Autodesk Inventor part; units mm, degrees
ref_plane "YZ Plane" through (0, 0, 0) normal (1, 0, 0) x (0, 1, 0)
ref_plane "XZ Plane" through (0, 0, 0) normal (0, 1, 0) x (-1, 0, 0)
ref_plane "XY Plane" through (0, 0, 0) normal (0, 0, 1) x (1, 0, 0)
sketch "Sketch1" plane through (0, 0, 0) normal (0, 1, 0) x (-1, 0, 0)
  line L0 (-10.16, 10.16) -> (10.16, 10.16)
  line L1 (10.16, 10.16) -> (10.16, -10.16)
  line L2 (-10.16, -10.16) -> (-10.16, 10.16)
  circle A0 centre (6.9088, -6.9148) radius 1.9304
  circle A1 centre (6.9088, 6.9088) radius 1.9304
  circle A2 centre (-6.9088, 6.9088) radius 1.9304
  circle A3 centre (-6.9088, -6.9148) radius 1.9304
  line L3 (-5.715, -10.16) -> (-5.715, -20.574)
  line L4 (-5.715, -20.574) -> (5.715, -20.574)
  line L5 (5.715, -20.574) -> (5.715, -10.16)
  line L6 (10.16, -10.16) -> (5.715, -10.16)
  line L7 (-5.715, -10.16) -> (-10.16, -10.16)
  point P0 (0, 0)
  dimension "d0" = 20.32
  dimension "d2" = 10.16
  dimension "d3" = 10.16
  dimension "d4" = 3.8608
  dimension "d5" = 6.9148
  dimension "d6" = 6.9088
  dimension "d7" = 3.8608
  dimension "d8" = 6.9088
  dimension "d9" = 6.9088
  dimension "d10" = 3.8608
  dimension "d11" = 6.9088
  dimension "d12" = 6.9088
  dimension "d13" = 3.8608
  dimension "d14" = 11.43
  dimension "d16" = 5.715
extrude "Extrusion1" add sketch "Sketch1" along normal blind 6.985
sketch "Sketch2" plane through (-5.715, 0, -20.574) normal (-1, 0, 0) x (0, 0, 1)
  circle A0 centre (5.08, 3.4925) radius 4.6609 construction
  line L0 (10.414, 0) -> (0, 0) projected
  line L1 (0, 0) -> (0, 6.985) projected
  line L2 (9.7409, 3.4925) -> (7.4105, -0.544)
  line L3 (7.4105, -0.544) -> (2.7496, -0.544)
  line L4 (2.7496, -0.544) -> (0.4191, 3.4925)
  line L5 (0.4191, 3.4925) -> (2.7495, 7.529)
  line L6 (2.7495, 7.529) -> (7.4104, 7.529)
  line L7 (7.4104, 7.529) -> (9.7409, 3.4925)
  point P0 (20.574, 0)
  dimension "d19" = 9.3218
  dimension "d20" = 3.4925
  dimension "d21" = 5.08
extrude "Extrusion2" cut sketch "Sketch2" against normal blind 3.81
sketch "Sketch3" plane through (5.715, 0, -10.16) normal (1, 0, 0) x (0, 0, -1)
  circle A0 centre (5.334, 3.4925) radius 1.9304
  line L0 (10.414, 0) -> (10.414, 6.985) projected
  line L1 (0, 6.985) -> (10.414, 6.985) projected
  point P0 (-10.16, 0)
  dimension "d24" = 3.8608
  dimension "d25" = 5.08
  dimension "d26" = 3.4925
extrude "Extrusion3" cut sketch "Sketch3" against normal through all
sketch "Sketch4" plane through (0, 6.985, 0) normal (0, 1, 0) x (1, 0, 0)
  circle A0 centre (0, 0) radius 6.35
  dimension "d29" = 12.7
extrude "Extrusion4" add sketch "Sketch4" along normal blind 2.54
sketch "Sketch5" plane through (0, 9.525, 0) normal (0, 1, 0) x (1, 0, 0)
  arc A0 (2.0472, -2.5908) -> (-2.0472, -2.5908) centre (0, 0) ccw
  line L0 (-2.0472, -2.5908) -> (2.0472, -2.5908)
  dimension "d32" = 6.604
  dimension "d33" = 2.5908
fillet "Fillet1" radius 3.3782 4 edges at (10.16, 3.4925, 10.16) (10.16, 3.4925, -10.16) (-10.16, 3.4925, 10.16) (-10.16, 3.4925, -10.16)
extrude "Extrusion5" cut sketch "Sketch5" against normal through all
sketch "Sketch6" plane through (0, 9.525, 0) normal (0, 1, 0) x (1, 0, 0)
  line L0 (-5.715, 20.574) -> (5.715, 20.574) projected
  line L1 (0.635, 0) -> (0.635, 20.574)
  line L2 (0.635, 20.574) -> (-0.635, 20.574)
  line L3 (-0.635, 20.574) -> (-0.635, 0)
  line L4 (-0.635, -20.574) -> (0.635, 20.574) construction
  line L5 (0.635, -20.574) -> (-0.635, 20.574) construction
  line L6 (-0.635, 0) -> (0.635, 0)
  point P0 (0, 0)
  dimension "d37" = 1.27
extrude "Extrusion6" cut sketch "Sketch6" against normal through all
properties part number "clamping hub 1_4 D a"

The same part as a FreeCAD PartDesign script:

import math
import FreeCAD as App
import Part
import Sketcher

V = App.Vector
Q = App.Units.Quantity


def edges_at(feature, points):
    """Names of the edges that pass closest to the given points."""
    edges = feature.Shape.Edges
    near = lambda p: min(range(len(edges)), key=lambda i: edges[i].distToShape(Part.Vertex(*p))[0])
    return sorted({f"Edge{near(p) + 1}" for p in points})

doc = App.newDocument("Part")
body = doc.addObject("PartDesign::Body", "Body")

# Sketch on XZ plane
sketch1 = doc.addObject("Sketcher::SketchObject", "Sketch")
body.addObject(sketch1)
sketch1.AttachmentSupport = (doc.XZ_Plane, [""])
sketch1.MapMode = "FlatFace"
sketch1.addGeometry(Part.LineSegment(V(-10.2, 10.2, 0), V(10.2, 10.2, 0)), False)
sketch1.addGeometry(Part.LineSegment(V(10.2, 10.2, 0), V(10.2, -10.2, 0)), False)
sketch1.addGeometry(Part.LineSegment(V(10.2, -10.2, 0), V(5.7, -10.2, 0)), False)
sketch1.addGeometry(Part.LineSegment(V(5.7, -10.2, 0), V(5.7, -20.6, 0)), False)
sketch1.addGeometry(Part.LineSegment(V(5.7, -20.6, 0), V(-5.7, -20.6, 0)), False)
sketch1.addGeometry(Part.LineSegment(V(-5.7, -20.6, 0), V(-5.7, -10.2, 0)), False)
sketch1.addGeometry(Part.LineSegment(V(-5.7, -10.2, 0), V(-10.2, -10.2, 0)), False)
sketch1.addGeometry(Part.LineSegment(V(-10.2, -10.2, 0), V(-10.2, 10.2, 0)), False)
sketch1.addGeometry(Part.Circle(V(6.9, -6.9, 0), V(0, 0, 1), 1.9), False)
sketch1.addGeometry(Part.Circle(V(-6.9, -6.9, 0), V(0, 0, 1), 1.9), False)
sketch1.addGeometry(Part.Circle(V(6.9, 6.9, 0), V(0, 0, 1), 1.9), False)
sketch1.addGeometry(Part.Circle(V(-6.9, 6.9, 0), V(0, 0, 1), 1.9), False)
sketch1.addConstraint(Sketcher.Constraint("Coincident", 0, 2, 1, 1))
sketch1.addConstraint(Sketcher.Constraint("Coincident", 1, 2, 2, 1))
sketch1.addConstraint(Sketcher.Constraint("Coincident", 2, 2, 3, 1))
sketch1.addConstraint(Sketcher.Constraint("Coincident", 3, 2, 4, 1))
sketch1.addConstraint(Sketcher.Constraint("Coincident", 4, 2, 5, 1))
sketch1.addConstraint(Sketcher.Constraint("Coincident", 5, 2, 6, 1))
sketch1.addConstraint(Sketcher.Constraint("Coincident", 6, 2, 7, 1))
sketch1.addConstraint(Sketcher.Constraint("Coincident", 7, 2, 0, 1))
sketch1.addConstraint(Sketcher.Constraint("Horizontal", 0))
sketch1.addConstraint(Sketcher.Constraint("Vertical", 1))
sketch1.addConstraint(Sketcher.Constraint("Horizontal", 2))
sketch1.addConstraint(Sketcher.Constraint("Vertical", 3))
sketch1.addConstraint(Sketcher.Constraint("Horizontal", 4))
sketch1.addConstraint(Sketcher.Constraint("Vertical", 5))
sketch1.addConstraint(Sketcher.Constraint("Horizontal", 6))
sketch1.addConstraint(Sketcher.Constraint("Vertical", 7))
sketch1.addConstraint(Sketcher.Constraint("Equal", 8, 9))
sketch1.addConstraint(Sketcher.Constraint("Equal", 9, 10))
sketch1.addConstraint(Sketcher.Constraint("Equal", 10, 11))
sketch1.addConstraint(Sketcher.Constraint("Symmetric", 0, 2, 6, 2, -1, 1))
sketch1.addConstraint(Sketcher.Constraint("Symmetric", 8, 3, 9, 3, -2))
sketch1.addConstraint(Sketcher.Constraint("Symmetric", 10, 3, 11, 3, -2))
sketch1.addConstraint(Sketcher.Constraint("Symmetric", 2, 2, 5, 2, -2))
sketch1.addConstraint(Sketcher.Constraint("Vertical", 8, 3, 10, 3))
sketch1.addConstraint(Sketcher.Constraint("Equal", 0, 1))
sketch1.addConstraint(Sketcher.Constraint("Diameter", 8, Q("0.152 in")))
sketch1.addConstraint(Sketcher.Constraint("DistanceX", 0, 1, 0, 2, Q("0.8 in")))
sketch1.addConstraint(Sketcher.Constraint("DistanceX", 4, 2, 4, 1, Q("0.45 in")))
sketch1.addConstraint(Sketcher.Constraint("DistanceX", -1, 1, 8, 3, Q("0.272 in")))
sketch1.addConstraint(Sketcher.Constraint("DistanceY", -1, 1, 10, 3, Q("0.272 in")))
sketch1.addConstraint(Sketcher.Constraint("DistanceY", 3, 2, 3, 1, Q("0.41 in")))
sketch1.addConstraint(Sketcher.Constraint("DistanceY", 8, 3, -1, 1, Q("6.9148 mm")))
pad1 = doc.addObject("PartDesign::Pad", "Pad")
body.addObject(pad1)
pad1.Profile = sketch1
pad1.Length = Q("0.275 in")
pad1.Reversed = True

# Sketch on YZ plane
sketch2 = doc.addObject("Sketcher::SketchObject", "Sketch001")
body.addObject(sketch2)
sketch2.AttachmentSupport = (doc.YZ_Plane, [""])
sketch2.MapMode = "FlatFace"
sketch2.AttachmentOffset = App.Placement(V(0, 0, -0.225 * 25.4), App.Rotation())
sketch2.addGeometry(Part.LineSegment(V(-0.5, -13.2, 0), V(3.5, -10.8, 0)), False)
sketch2.addGeometry(Part.LineSegment(V(3.5, -10.8, 0), V(7.5, -13.2, 0)), False)
sketch2.addGeometry(Part.LineSegment(V(7.5, -13.2, 0), V(7.5, -17.8, 0)), False)
sketch2.addGeometry(Part.LineSegment(V(7.5, -17.8, 0), V(3.5, -20.2, 0)), False)
sketch2.addGeometry(Part.LineSegment(V(3.5, -20.2, 0), V(-0.5, -17.8, 0)), False)
sketch2.addGeometry(Part.LineSegment(V(-0.5, -17.8, 0), V(-0.5, -13.2, 0)), False)
sketch2.addConstraint(Sketcher.Constraint("Coincident", 0, 2, 1, 1))
sketch2.addConstraint(Sketcher.Constraint("Coincident", 1, 2, 2, 1))
sketch2.addConstraint(Sketcher.Constraint("Coincident", 2, 2, 3, 1))
sketch2.addConstraint(Sketcher.Constraint("Coincident", 3, 2, 4, 1))
sketch2.addConstraint(Sketcher.Constraint("Coincident", 4, 2, 5, 1))
sketch2.addConstraint(Sketcher.Constraint("Coincident", 5, 2, 0, 1))
sketch2.addConstraint(Sketcher.Constraint("Vertical", 2))
sketch2.addConstraint(Sketcher.Constraint("Vertical", 5))
sketch2.addConstraint(Sketcher.Constraint("Parallel", 0, 3))
sketch2.addConstraint(Sketcher.Constraint("Parallel", 1, 4))
sketch2.addConstraint(Sketcher.Constraint("Horizontal", 2, 2, 4, 2))
sketch2.addConstraint(Sketcher.Constraint("Horizontal", 1, 2, 5, 2))
sketch2.addConstraint(Sketcher.Constraint("Vertical", 0, 2, 3, 2))
sketch2.addConstraint(Sketcher.Constraint("Angle", 0, Q("29.9992 deg")))
sketch2.addConstraint(Sketcher.Constraint("DistanceY", 3, 2, 0, 2, Q("0.367 in")))
sketch2.addConstraint(Sketcher.Constraint("DistanceX", -1, 1, 0, 2, Q("0.1375 in")))
sketch2.addConstraint(Sketcher.Constraint("DistanceY", 2, 2, 2, 1, Q("0.1835 in")))
sketch2.addConstraint(Sketcher.Constraint("DistanceY", 0, 2, -1, 1, Q("0.4265 in")))
pocket1 = doc.addObject("PartDesign::Pocket", "Pocket")
body.addObject(pocket1)
pocket1.Profile = sketch2
pocket1.Length = Q("0.15 in")
pocket1.Reversed = True

# Sketch on YZ plane
sketch3 = doc.addObject("Sketcher::SketchObject", "Sketch002")
body.addObject(sketch3)
sketch3.AttachmentSupport = (doc.YZ_Plane, [""])
sketch3.MapMode = "FlatFace"
sketch3.AttachmentOffset = App.Placement(V(0, 0, 0.225 * 25.4), App.Rotation())
sketch3.addGeometry(Part.Circle(V(3.5, -15.5, 0), V(0, 0, 1), 1.9), False)
sketch3.addConstraint(Sketcher.Constraint("Diameter", 0, Q("0.152 in")))
sketch3.addConstraint(Sketcher.Constraint("DistanceX", -1, 1, 0, 3, Q("0.1375 in")))
sketch3.addConstraint(Sketcher.Constraint("DistanceY", 0, 3, -1, 1, Q("0.61 in")))
pocket2 = doc.addObject("PartDesign::Pocket", "Pocket001")
body.addObject(pocket2)
pocket2.Profile = sketch3
pocket2.Type = "ThroughAll"

# Sketch on XZ plane
sketch4 = doc.addObject("Sketcher::SketchObject", "Sketch003")
body.addObject(sketch4)
sketch4.AttachmentSupport = (doc.XZ_Plane, [""])
sketch4.MapMode = "FlatFace"
sketch4.AttachmentOffset = App.Placement(V(0, 0, -0.275 * 25.4), App.Rotation())
sketch4.addGeometry(Part.Circle(V(0, 0, 0), V(0, 0, 1), 6), False)
sketch4.addConstraint(Sketcher.Constraint("Coincident", 0, 3, -1, 1))
sketch4.addConstraint(Sketcher.Constraint("Diameter", 0, Q("0.5 in")))
pad2 = doc.addObject("PartDesign::Pad", "Pad001")
body.addObject(pad2)
pad2.Profile = sketch4
pad2.Length = Q("0.1 in")
pad2.Reversed = True
doc.recompute()

fillet = doc.addObject("PartDesign::Fillet", "Fillet")
body.addObject(fillet)
fillet.Base = (pad2, edges_at(pad2, [
    (10.16, 3.493, 10.16),
    (10.16, 3.493, -10.16),
    (-10.16, 3.493, 10.16),
    (-10.16, 3.493, -10.16),
]))
fillet.Radius = Q("0.133 in")

# Sketch on XZ plane
sketch5 = doc.addObject("Sketcher::SketchObject", "Sketch004")
body.addObject(sketch5)
sketch5.AttachmentSupport = (doc.XZ_Plane, [""])
sketch5.MapMode = "FlatFace"
sketch5.AttachmentOffset = App.Placement(V(0, 0, -0.375 * 25.4), App.Rotation())
sketch5.addGeometry(Part.LineSegment(V(-2, 2.6, 0), V(2, 2.6, 0)), False)
sketch5.addGeometry(Part.ArcOfCircle(Part.Circle(V(0, 0, 0), V(0, 0, 1), 3.3), math.radians(128), math.radians(412)), False)
sketch5.addConstraint(Sketcher.Constraint("Coincident", 0, 1, 1, 1))
sketch5.addConstraint(Sketcher.Constraint("Coincident", 1, 2, 0, 2))
sketch5.addConstraint(Sketcher.Constraint("Horizontal", 0))
sketch5.addConstraint(Sketcher.Constraint("Coincident", 1, 3, -1, 1))
sketch5.addConstraint(Sketcher.Constraint("Radius", 1, Q("0.13 in")))
sketch5.addConstraint(Sketcher.Constraint("DistanceY", -1, 1, 0, 1, Q("0.102 in")))
pocket3 = doc.addObject("PartDesign::Pocket", "Pocket002")
body.addObject(pocket3)
pocket3.Profile = sketch5
pocket3.Type = "ThroughAll"
pocket3.Reversed = True

# Sketch on XZ plane
sketch6 = doc.addObject("Sketcher::SketchObject", "Sketch005")
body.addObject(sketch6)
sketch6.AttachmentSupport = (doc.XZ_Plane, [""])
sketch6.MapMode = "FlatFace"
sketch6.AttachmentOffset = App.Placement(V(0, 0, -0.375 * 25.4), App.Rotation())
sketch6.addGeometry(Part.LineSegment(V(0.6, -20.6, 0), V(-0.6, -20.6, 0)), False)
sketch6.addGeometry(Part.LineSegment(V(-0.6, -20.6, 0), V(-0.6, 0, 0)), False)
sketch6.addGeometry(Part.LineSegment(V(-0.6, 0, 0), V(0.6, 0, 0)), False)
sketch6.addGeometry(Part.LineSegment(V(0.6, 0, 0), V(0.6, -20.6, 0)), False)
sketch6.addConstraint(Sketcher.Constraint("Coincident", 0, 2, 1, 1))
sketch6.addConstraint(Sketcher.Constraint("Coincident", 1, 2, 2, 1))
sketch6.addConstraint(Sketcher.Constraint("Coincident", 2, 2, 3, 1))
sketch6.addConstraint(Sketcher.Constraint("Coincident", 3, 2, 0, 1))
sketch6.addConstraint(Sketcher.Constraint("Horizontal", 0))
sketch6.addConstraint(Sketcher.Constraint("Vertical", 1))
sketch6.addConstraint(Sketcher.Constraint("Horizontal", 2))
sketch6.addConstraint(Sketcher.Constraint("Vertical", 3))
sketch6.addConstraint(Sketcher.Constraint("Symmetric", 1, 2, 2, 2, -1, 1))
sketch6.addConstraint(Sketcher.Constraint("DistanceX", 0, 2, 0, 1, Q("0.05 in")))
sketch6.addConstraint(Sketcher.Constraint("DistanceY", 1, 1, 1, 2, Q("0.81 in")))
pocket4 = doc.addObject("PartDesign::Pocket", "Pocket003")
body.addObject(pocket4)
pocket4.Profile = sketch6
pocket4.Type = "ThroughAll"
pocket4.Reversed = True

doc.recompute()
